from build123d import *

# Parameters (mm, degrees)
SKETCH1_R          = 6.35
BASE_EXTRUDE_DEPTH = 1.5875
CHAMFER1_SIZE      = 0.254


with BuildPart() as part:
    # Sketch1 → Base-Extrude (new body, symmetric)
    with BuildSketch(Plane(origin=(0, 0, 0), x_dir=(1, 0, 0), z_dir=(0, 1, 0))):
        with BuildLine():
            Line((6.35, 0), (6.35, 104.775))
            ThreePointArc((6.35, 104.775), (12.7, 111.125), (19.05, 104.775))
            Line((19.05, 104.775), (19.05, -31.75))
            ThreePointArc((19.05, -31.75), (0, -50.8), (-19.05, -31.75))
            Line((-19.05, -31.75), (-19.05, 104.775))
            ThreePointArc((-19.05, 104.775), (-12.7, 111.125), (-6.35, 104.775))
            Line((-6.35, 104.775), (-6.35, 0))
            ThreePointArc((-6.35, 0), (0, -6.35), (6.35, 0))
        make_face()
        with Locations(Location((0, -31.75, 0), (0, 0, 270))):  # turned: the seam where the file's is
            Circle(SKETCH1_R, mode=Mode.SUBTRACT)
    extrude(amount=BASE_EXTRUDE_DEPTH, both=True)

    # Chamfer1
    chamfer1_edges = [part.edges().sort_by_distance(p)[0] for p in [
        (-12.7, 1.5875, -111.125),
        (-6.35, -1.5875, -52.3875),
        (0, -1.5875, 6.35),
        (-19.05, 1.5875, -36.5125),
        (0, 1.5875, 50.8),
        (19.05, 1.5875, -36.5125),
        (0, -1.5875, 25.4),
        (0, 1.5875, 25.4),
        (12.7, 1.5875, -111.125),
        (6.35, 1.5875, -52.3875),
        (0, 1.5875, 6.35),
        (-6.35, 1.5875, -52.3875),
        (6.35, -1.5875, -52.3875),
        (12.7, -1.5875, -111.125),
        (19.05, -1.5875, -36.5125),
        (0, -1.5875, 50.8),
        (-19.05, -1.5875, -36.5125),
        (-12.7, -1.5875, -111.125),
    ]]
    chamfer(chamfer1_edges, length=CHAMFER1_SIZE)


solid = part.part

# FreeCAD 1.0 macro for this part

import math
import FreeCAD as App
import Part
import Sketcher
from FreeCAD import Vector
Q = App.Units.Quantity


def edges_at(feature, points):
    """Names of the edges that pass closest to the given points."""
    edges = feature.Shape.Edges
    near = lambda p: min(range(len(edges)), key=lambda i: edges[i].distToShape(Part.Vertex(*p))[0])
    return sorted({f"Edge{near(p) + 1}" for p in points})

doc = App.newDocument("Part")
body = doc.addObject("PartDesign::Body", "Body")

# Sketch on XZ plane
sketch1 = body.newObject("Sketcher::SketchObject", "Sketch")
sketch1.AttachmentSupport = (doc.getObject("XZ_Plane"), [""])
sketch1.MapMode = "FlatFace"
sketch1.addGeometry(Part.LineSegment(Vector(6.35, -104.775, 0), Vector(6.35, 0, 0)), False)
sketch1.addGeometry(Part.ArcOfCircle(Part.Circle(Vector(0, 0, 0), Vector(0, 0, 1), 6.35), math.radians(0), math.radians(180)), False)
sketch1.addGeometry(Part.LineSegment(Vector(-6.35, 0, 0), Vector(-6.35, -104.775, 0)), False)
sketch1.addGeometry(Part.ArcOfCircle(Part.Circle(Vector(-12.7, -104.775, 0), Vector(0, 0, 1), 6.35), math.radians(180), math.radians(360)), False)
sketch1.addGeometry(Part.LineSegment(Vector(-19.05, -104.775, 0), Vector(-19.05, 31.75, 0)), False)
sketch1.addGeometry(Part.ArcOfCircle(Part.Circle(Vector(0, 31.75, 0), Vector(0, 0, 1), 19.05), math.radians(0), math.radians(180)), False)
sketch1.addGeometry(Part.LineSegment(Vector(19.05, 31.75, 0), Vector(19.05, -104.775, 0)), False)
sketch1.addGeometry(Part.ArcOfCircle(Part.Circle(Vector(12.7, -104.775, 0), Vector(0, 0, 1), 6.35), math.radians(180), math.radians(360)), False)
sketch1.addGeometry(Part.Circle(Vector(0, 31.75, 0), Vector(0, 0, 1), 6.35), False)
sketch1.addConstraint(Sketcher.Constraint("Tangent", 0, 2, 1, 1))
sketch1.addConstraint(Sketcher.Constraint("Tangent", 1, 2, 2, 1))
sketch1.addConstraint(Sketcher.Constraint("Tangent", 2, 2, 3, 2))
sketch1.addConstraint(Sketcher.Constraint("Tangent", 3, 1, 4, 1))
sketch1.addConstraint(Sketcher.Constraint("Tangent", 4, 2, 5, 2))
sketch1.addConstraint(Sketcher.Constraint("Tangent", 5, 1, 6, 1))
sketch1.addConstraint(Sketcher.Constraint("Tangent", 6, 2, 7, 2))
sketch1.addConstraint(Sketcher.Constraint("Tangent", 7, 1, 0, 1))
sketch1.addConstraint(Sketcher.Constraint("Vertical", 0))
sketch1.addConstraint(Sketcher.Constraint("Vertical", 2))
sketch1.addConstraint(Sketcher.Constraint("Vertical", 4))
sketch1.addConstraint(Sketcher.Constraint("Vertical", 6))
sketch1.addConstraint(Sketcher.Constraint("Coincident", 1, 3, -1, 1))
sketch1.addConstraint(Sketcher.Constraint("Coincident", 8, 3, 5, 3))
sketch1.addConstraint(Sketcher.Constraint("Equal", 1, 3))
sketch1.addConstraint(Sketcher.Constraint("Equal", 3, 7))
sketch1.addConstraint(Sketcher.Constraint("Equal", 7, 8))
sketch1.addConstraint(Sketcher.Constraint("Horizontal", 3, 3, 7, 3))
sketch1.addConstraint(Sketcher.Constraint("Diameter", 8, Q("0.5 in")))
sketch1.addConstraint(Sketcher.Constraint("DistanceY", 0, 1, 0, 2, Q("4.125 in")))
sketch1.addConstraint(Sketcher.Constraint("DistanceY", 4, 1, 4, 2, Q("5.375 in")))
pad1 = body.newObject("PartDesign::Pad", "Pad")
pad1.Profile = sketch1
pad1.Length = Q("0.125 in")
pad1.Midplane = True
doc.recompute()

chamfer = body.newObject("PartDesign::Chamfer", "Chamfer")
chamfer.Base = (pad1, edges_at(pad1, [
    (-12.7, 1.587, -111.125),
    (-6.35, -1.587, -52.388),
    (0, -1.587, 6.35),
    (-19.05, 1.587, -36.513),
    (0, 1.587, 50.8),
    (19.05, 1.587, -36.513),
    (0, -1.587, 25.4),
    (0, 1.587, 25.4),
    (12.7, 1.587, -111.125),
    (6.35, 1.587, -52.388),
    (0, 1.587, 6.35),
    (-6.35, 1.587, -52.388),
    (6.35, -1.587, -52.388),
    (12.7, -1.587, -111.125),
    (19.05, -1.587, -36.513),
    (0, -1.587, 50.8),
    (-19.05, -1.587, -36.513),
    (-12.7, -1.587, -111.125),
]))
chamfer.Size = Q("0.01 in")

doc.recompute()
